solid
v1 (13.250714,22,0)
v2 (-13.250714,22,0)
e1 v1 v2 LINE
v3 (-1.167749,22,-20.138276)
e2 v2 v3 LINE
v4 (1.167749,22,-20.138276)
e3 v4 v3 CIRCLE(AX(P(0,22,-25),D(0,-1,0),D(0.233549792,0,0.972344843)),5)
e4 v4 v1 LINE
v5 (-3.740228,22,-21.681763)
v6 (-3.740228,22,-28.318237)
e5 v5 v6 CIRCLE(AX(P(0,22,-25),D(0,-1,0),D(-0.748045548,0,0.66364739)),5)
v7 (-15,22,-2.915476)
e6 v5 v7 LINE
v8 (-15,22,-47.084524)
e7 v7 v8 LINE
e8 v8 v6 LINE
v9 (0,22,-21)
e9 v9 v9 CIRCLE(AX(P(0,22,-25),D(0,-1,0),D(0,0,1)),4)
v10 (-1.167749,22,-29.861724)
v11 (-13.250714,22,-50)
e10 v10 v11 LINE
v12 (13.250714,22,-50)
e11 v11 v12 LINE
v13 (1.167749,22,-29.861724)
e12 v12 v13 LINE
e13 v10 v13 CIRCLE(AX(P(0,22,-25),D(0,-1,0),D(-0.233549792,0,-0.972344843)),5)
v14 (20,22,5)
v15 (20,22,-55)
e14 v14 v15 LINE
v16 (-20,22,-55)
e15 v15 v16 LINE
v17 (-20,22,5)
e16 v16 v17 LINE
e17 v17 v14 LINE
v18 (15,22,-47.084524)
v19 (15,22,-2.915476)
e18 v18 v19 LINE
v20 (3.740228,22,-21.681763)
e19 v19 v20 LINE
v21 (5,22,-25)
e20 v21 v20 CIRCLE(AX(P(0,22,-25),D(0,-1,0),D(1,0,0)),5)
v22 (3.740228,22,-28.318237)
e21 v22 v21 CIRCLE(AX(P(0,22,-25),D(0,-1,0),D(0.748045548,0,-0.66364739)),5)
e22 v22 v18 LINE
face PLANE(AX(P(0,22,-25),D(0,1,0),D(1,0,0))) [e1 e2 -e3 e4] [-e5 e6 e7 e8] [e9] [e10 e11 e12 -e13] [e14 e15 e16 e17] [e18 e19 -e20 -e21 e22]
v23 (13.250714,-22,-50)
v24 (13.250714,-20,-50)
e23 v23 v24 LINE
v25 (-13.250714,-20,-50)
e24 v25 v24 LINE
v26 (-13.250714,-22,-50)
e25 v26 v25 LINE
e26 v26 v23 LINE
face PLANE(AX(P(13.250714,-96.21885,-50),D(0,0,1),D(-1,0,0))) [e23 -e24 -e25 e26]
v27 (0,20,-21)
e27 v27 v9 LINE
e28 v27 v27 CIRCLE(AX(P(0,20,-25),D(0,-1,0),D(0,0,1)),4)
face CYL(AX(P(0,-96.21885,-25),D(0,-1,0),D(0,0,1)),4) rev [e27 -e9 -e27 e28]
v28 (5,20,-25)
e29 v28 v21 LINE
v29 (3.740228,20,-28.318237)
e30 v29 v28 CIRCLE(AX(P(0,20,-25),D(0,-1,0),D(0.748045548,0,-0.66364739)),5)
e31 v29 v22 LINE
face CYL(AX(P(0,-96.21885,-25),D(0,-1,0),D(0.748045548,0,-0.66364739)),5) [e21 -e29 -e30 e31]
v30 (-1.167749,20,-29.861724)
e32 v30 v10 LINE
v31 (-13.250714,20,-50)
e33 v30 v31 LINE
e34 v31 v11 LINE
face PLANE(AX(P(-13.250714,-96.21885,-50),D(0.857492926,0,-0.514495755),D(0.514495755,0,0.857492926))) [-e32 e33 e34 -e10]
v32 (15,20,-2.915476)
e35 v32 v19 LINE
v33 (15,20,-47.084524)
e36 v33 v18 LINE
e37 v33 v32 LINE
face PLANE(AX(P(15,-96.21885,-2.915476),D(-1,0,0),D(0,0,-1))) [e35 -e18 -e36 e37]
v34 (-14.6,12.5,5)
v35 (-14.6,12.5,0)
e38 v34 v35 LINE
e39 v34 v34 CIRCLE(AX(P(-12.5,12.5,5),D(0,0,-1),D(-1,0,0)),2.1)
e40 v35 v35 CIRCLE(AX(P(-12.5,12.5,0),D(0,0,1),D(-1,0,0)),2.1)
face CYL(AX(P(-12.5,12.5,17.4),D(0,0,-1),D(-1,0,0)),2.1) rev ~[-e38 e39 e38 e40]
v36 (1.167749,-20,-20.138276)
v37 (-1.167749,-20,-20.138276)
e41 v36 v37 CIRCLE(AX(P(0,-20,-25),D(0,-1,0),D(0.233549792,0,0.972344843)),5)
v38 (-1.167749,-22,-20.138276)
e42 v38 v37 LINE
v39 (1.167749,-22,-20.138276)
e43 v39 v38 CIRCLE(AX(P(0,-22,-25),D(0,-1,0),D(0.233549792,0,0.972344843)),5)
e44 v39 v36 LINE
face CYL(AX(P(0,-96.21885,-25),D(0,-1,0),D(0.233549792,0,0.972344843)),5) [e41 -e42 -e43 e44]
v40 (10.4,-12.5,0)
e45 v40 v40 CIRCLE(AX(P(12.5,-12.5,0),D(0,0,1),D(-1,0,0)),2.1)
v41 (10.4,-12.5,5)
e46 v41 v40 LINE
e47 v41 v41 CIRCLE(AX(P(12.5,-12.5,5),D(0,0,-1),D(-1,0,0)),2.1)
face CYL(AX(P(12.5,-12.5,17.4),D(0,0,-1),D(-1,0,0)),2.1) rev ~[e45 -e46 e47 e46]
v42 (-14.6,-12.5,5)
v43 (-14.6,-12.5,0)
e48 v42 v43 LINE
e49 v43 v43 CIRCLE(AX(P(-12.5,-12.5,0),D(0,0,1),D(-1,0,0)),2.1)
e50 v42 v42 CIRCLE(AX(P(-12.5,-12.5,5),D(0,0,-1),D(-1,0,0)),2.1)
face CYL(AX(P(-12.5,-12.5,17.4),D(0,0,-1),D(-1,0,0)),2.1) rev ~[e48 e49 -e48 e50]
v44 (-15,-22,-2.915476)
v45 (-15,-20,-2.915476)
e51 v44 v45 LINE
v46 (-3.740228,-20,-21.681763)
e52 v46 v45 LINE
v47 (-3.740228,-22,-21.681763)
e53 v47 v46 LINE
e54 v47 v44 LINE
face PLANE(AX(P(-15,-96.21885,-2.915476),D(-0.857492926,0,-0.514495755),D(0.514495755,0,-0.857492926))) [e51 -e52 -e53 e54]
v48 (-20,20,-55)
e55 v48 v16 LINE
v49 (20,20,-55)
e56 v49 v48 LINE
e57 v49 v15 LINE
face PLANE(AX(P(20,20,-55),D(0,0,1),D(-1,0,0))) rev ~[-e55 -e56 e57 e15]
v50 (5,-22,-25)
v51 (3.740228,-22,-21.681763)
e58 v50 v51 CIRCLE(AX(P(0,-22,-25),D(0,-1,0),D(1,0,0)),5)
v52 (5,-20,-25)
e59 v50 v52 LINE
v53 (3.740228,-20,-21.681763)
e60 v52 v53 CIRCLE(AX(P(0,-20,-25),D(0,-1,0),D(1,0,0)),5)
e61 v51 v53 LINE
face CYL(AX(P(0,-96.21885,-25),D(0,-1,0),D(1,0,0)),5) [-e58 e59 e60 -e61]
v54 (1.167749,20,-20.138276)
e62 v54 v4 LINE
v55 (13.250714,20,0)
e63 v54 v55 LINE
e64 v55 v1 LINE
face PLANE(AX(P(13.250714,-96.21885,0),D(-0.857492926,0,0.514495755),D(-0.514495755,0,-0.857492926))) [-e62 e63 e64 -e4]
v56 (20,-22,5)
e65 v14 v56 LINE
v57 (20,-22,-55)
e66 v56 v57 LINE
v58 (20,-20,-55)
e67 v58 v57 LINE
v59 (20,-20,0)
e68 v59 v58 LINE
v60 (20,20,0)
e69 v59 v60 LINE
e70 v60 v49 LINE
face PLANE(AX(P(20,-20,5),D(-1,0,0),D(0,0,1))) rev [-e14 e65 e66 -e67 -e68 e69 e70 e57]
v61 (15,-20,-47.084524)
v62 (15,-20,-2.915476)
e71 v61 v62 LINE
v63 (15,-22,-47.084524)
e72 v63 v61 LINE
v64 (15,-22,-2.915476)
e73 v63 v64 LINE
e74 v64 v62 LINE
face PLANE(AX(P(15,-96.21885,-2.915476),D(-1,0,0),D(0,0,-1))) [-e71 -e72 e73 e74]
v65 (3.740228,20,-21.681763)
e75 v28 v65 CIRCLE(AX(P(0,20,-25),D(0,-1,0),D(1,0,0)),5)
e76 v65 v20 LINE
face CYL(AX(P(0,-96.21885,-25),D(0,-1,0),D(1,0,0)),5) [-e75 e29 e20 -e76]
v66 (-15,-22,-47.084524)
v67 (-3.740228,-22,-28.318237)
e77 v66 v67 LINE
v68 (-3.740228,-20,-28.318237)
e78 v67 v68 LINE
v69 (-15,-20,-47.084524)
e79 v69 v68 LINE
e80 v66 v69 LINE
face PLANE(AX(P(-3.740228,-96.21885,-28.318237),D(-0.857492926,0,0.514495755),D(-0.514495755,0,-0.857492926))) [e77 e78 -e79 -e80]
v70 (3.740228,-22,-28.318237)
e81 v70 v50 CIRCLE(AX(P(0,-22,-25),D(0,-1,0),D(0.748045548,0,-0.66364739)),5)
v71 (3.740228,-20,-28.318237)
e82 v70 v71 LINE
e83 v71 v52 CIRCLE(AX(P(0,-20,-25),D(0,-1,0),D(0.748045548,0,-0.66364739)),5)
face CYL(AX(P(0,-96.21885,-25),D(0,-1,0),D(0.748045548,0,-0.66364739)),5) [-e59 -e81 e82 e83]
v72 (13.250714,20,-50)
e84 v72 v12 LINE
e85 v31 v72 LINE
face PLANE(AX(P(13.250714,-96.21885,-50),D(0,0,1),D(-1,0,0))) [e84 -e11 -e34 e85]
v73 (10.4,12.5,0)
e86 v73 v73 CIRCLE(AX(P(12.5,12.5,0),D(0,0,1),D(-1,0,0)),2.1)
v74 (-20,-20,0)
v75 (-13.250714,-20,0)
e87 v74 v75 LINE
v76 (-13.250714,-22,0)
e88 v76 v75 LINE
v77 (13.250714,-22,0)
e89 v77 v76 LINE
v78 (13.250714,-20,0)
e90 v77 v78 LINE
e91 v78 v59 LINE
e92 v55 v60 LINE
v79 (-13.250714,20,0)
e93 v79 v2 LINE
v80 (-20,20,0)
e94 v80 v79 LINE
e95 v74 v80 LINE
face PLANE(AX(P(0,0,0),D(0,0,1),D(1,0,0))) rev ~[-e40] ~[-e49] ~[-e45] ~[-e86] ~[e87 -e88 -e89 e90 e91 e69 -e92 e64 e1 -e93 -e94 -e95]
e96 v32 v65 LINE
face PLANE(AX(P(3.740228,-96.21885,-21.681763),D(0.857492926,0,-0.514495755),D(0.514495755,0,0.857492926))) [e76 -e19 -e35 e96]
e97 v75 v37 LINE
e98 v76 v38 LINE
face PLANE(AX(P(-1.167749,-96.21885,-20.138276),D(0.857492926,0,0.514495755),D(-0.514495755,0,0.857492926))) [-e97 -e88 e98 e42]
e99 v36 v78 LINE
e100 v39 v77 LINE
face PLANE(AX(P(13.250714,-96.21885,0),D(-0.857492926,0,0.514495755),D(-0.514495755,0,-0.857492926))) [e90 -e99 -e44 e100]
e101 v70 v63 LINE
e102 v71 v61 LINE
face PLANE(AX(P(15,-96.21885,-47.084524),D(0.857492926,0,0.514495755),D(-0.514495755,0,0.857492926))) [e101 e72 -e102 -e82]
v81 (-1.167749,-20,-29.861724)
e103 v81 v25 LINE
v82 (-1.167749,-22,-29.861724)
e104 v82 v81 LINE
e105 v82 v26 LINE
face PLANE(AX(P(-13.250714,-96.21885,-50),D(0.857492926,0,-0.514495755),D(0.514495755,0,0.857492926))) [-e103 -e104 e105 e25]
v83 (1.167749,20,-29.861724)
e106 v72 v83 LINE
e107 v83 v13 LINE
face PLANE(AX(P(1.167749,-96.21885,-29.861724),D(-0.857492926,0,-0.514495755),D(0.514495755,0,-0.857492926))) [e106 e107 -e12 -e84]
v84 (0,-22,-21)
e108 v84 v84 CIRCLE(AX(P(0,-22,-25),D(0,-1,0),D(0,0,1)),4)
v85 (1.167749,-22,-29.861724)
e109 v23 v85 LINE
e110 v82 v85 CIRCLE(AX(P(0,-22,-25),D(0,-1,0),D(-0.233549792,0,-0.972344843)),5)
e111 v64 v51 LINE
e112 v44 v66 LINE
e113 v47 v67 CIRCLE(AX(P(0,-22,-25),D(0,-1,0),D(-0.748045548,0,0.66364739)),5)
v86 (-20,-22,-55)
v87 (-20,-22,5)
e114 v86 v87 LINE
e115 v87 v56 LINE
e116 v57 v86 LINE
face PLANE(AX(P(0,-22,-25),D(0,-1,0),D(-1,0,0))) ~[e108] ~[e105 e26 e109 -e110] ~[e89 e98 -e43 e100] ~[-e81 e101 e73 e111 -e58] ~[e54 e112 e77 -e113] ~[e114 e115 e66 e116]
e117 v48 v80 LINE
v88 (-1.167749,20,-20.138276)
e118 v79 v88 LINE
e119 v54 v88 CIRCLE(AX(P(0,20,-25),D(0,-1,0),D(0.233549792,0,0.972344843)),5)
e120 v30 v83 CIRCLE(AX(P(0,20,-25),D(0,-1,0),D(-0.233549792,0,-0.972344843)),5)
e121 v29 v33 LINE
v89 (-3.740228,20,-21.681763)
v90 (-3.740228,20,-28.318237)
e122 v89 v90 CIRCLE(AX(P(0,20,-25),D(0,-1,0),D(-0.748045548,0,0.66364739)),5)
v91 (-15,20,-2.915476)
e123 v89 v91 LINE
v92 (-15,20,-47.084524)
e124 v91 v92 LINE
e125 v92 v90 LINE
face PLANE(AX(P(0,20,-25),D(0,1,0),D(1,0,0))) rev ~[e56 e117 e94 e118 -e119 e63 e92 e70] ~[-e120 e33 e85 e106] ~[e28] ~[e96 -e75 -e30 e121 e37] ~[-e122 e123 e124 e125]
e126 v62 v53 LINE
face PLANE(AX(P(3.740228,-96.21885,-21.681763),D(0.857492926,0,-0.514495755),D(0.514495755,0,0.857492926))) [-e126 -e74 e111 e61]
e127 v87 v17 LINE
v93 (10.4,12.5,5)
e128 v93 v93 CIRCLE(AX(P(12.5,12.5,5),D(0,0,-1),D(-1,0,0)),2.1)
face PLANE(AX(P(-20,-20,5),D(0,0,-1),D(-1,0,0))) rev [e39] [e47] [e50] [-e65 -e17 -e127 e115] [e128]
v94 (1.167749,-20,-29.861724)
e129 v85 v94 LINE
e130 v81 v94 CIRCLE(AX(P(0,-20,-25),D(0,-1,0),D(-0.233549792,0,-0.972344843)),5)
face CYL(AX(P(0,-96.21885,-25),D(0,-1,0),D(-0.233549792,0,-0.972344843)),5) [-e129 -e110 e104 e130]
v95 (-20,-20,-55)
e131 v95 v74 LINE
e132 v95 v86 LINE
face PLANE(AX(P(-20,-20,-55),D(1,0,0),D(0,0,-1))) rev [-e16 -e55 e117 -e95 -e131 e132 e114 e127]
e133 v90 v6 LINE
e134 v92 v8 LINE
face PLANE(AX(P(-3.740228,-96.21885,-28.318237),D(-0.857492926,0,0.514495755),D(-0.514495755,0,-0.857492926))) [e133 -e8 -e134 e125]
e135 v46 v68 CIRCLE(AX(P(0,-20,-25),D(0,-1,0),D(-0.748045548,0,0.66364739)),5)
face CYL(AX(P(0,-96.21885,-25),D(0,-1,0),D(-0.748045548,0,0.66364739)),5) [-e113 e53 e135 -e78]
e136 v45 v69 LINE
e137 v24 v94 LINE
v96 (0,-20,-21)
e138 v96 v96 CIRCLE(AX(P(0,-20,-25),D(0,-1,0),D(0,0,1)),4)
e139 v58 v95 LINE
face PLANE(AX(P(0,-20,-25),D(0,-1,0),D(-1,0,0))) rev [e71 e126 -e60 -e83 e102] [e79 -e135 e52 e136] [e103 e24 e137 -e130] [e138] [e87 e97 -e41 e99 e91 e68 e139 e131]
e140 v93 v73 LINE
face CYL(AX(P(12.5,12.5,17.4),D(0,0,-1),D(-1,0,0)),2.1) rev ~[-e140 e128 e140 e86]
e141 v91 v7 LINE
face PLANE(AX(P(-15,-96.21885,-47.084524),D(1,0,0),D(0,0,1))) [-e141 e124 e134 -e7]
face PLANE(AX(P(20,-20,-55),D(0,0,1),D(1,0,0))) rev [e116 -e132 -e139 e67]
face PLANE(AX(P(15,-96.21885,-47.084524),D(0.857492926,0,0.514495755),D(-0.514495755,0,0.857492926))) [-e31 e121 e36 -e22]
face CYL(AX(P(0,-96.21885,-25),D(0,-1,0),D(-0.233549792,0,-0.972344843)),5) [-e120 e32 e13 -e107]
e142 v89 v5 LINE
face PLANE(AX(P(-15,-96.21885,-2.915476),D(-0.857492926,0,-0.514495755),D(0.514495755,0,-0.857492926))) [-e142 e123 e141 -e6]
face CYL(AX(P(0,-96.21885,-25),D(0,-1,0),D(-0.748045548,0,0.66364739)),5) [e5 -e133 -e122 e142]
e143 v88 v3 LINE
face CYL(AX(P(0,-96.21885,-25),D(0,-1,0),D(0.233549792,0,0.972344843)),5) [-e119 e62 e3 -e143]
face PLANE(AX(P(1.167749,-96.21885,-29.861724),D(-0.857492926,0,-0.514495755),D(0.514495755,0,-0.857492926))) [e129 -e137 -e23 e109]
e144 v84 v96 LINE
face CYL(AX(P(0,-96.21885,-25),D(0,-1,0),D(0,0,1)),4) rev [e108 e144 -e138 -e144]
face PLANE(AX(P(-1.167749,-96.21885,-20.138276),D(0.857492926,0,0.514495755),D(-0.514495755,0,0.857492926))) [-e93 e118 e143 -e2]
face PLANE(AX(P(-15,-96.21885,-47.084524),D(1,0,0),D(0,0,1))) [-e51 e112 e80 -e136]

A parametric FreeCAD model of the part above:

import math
import FreeCAD as App
import Part
import Sketcher

V = App.Vector
Q = App.Units.Quantity


def add_polygon(sketch, points):
    """Adds a closed chain of lines whose ends are joined by coincident constraints."""
    first, n = sketch.GeometryCount, len(points)
    for a, b in zip(points, points[1:] + points[:1]):
        sketch.addGeometry(Part.LineSegment(App.Vector(*a, 0), App.Vector(*b, 0)), False)
    for i in range(n):
        sketch.addConstraint(Sketcher.Constraint("Coincident", first + i, 2, first + (i + 1) % n, 1))

doc = App.newDocument("Part")
body = doc.addObject("PartDesign::Body", "Body")

sketch1 = body.newObject("Sketcher::SketchObject", "Sketch")
sketch1.AttachmentSupport = (doc.getObject("XY_Plane"), [""])
sketch1.MapMode = "FlatFace"
add_polygon(sketch1, [(-20, 20), (-20, -20), (20, -20), (20, 20)])
sketch1.addConstraint(Sketcher.Constraint("Vertical", 0))
sketch1.addConstraint(Sketcher.Constraint("Horizontal", 1))
sketch1.addConstraint(Sketcher.Constraint("Vertical", 2))
sketch1.addConstraint(Sketcher.Constraint("Horizontal", 3))
sketch1.addConstraint(Sketcher.Constraint("Symmetric", 0, 2, 2, 2, -1, 1))
sketch1.addConstraint(Sketcher.Constraint("Equal", 3, 0))
sketch1.addConstraint(Sketcher.Constraint("DistanceX", 1, 1, 1, 2, Q("40 mm")))
pad1 = body.newObject("PartDesign::Pad", "Pad")
pad1.Profile = sketch1
pad1.Length = 5

sketch2 = body.newObject("Sketcher::SketchObject", "Sketch001")
sketch2.AttachmentSupport = (doc.getObject("XZ_Plane"), [""])
sketch2.MapMode = "FlatFace"
sketch2.AttachmentOffset = App.Placement(V(0, 0, -20), App.Rotation())
add_polygon(sketch2, [(20, -55), (-20, -55), (-20, 5), (20, 5)])
sketch2.addConstraint(Sketcher.Constraint("Horizontal", 0))
sketch2.addConstraint(Sketcher.Constraint("Vertical", 1))
sketch2.addConstraint(Sketcher.Constraint("Horizontal", 2))
sketch2.addConstraint(Sketcher.Constraint("Vertical", 3))
sketch2.addConstraint(Sketcher.Constraint("DistanceX", 0, 2, 0, 1, Q("40 mm")))
sketch2.addConstraint(Sketcher.Constraint("DistanceY", 1, 1, 1, 2, Q("60 mm")))
sketch2.addConstraint(Sketcher.Constraint("DistanceX", 0, 2, -1, 1, Q("20 mm")))
sketch2.addConstraint(Sketcher.Constraint("DistanceY", 0, 2, -1, 1, Q("55 mm")))
pad2 = body.newObject("PartDesign::Pad", "Pad001")
pad2.Profile = sketch2
pad2.Length = 2
pad2.Reversed = True
doc.recompute()

mirrored = body.newObject("PartDesign::Mirrored", "Mirrored")
mirrored.Originals = [pad2]
mirrored.MirrorPlane = (doc.getObject("XZ_Plane"), [""])
body.Tip = mirrored

sketch3 = body.newObject("Sketcher::SketchObject", "Sketch002")
sketch3.AttachmentSupport = (doc.getObject("XY_Plane"), [""])
sketch3.MapMode = "FlatFace"
sketch3.AttachmentOffset = App.Placement(V(0, 0, 5), App.Rotation())
sketch3.addGeometry(Part.Circle(V(-12.5, 12.5, 0), V(0, 0, 1), 2.1), False)
sketch3.addGeometry(Part.Circle(V(12.5, 12.5, 0), V(0, 0, 1), 2.1), False)
sketch3.addGeometry(Part.Circle(V(12.5, -12.5, 0), V(0, 0, 1), 2.1), False)
sketch3.addGeometry(Part.Circle(V(-12.5, -12.5, 0), V(0, 0, 1), 2.1), False)
sketch3.addConstraint(Sketcher.Constraint("Equal", 0, 1))
sketch3.addConstraint(Sketcher.Constraint("Equal", 1, 2))
sketch3.addConstraint(Sketcher.Constraint("Equal", 2, 3))
sketch3.addConstraint(Sketcher.Constraint("Symmetric", 0, 3, 2, 3, -1, 1))
sketch3.addConstraint(Sketcher.Constraint("Symmetric", 1, 3, 3, 3, -1, 1))
sketch3.addConstraint(Sketcher.Constraint("Symmetric", 0, 3, 1, 3, -2))
sketch3.addConstraint(Sketcher.Constraint("Diameter", 0, Q("4.2 mm")))
sketch3.addConstraint(Sketcher.Constraint("DistanceX", 0, 3, 1, 3, Q("25 mm")))
sketch3.addConstraint(Sketcher.Constraint("DistanceY", 2, 3, 1, 3, Q("25 mm")))
doc.recompute()
hole = body.newObject("PartDesign::Hole", "Hole")
hole.Profile = sketch3
hole.ThreadType = "None"
hole.Diameter = 4.2
hole.DepthType = "Dimension"
hole.Depth = 12.4
hole.DrillPoint = "Angled"
hole.DrillPointAngle = 118

sketch4 = body.newObject("Sketcher::SketchObject", "Sketch003")
sketch4.AttachmentSupport = (doc.getObject("XZ_Plane"), [""])
sketch4.MapMode = "FlatFace"
sketch4.AttachmentOffset = App.Placement(V(0, 0, 22), App.Rotation())
sketch4.addGeometry(Part.LineSegment(V(13.3, -50, 0), V(-13.3, -50, 0)), False)
sketch4.addGeometry(Part.LineSegment(V(-13.3, -50, 0), V(-1.2, -29.9, 0)), False)
sketch4.addGeometry(Part.ArcOfCircle(Part.Circle(V(0, -25, 0), V(0, 0, 1), 5), math.radians(-104), math.radians(-76)), False)
sketch4.addGeometry(Part.LineSegment(V(1.2, -29.9, 0), V(13.3, -50, 0)), False)
sketch4.addGeometry(Part.LineSegment(V(15, -2.9, 0), V(15, -47.1, 0)), False)
sketch4.addGeometry(Part.LineSegment(V(15, -47.1, 0), V(3.7, -28.3, 0)), False)
sketch4.addGeometry(Part.ArcOfCircle(Part.Circle(V(0, -25, 0), V(0, 0, 1), 5), math.radians(-42), math.radians(0)), False)
sketch4.addGeometry(Part.ArcOfCircle(Part.Circle(V(0, -25, 0), V(0, 0, 1), 5), math.radians(0), math.radians(42)), False)
sketch4.addGeometry(Part.LineSegment(V(3.7, -21.7, 0), V(15, -2.9, 0)), False)
sketch4.addGeometry(Part.LineSegment(V(-3.7, -28.3, 0), V(-15, -47.1, 0)), False)
sketch4.addGeometry(Part.LineSegment(V(-15, -47.1, 0), V(-15, -2.9, 0)), False)
sketch4.addGeometry(Part.LineSegment(V(-15, -2.9, 0), V(-3.7, -21.7, 0)), False)
sketch4.addGeometry(Part.ArcOfCircle(Part.Circle(V(0, -25, 0), V(0, 0, 1), 5), math.radians(138), math.radians(222)), False)
sketch4.addGeometry(Part.LineSegment(V(-1.2, -20.1, 0), V(-13.3, 0, 0)), False)
sketch4.addGeometry(Part.LineSegment(V(-13.3, 0, 0), V(13.3, 0, 0)), False)
sketch4.addGeometry(Part.LineSegment(V(13.3, 0, 0), V(1.2, -20.1, 0)), False)
sketch4.addGeometry(Part.ArcOfCircle(Part.Circle(V(0, -25, 0), V(0, 0, 1), 5), math.radians(76), math.radians(104)), False)
sketch4.addGeometry(Part.Circle(V(0, -25, 0), V(0, 0, 1), 4), False)
sketch4.addConstraint(Sketcher.Constraint("Coincident", 0, 2, 1, 1))
sketch4.addConstraint(Sketcher.Constraint("Coincident", 1, 2, 2, 1))
sketch4.addConstraint(Sketcher.Constraint("Coincident", 2, 2, 3, 1))
sketch4.addConstraint(Sketcher.Constraint("Coincident", 3, 2, 0, 1))
sketch4.addConstraint(Sketcher.Constraint("Coincident", 4, 2, 5, 1))
sketch4.addConstraint(Sketcher.Constraint("Coincident", 5, 2, 6, 1))
sketch4.addConstraint(Sketcher.Constraint("Tangent", 6, 2, 7, 1))
sketch4.addConstraint(Sketcher.Constraint("Coincident", 7, 2, 8, 1))
sketch4.addConstraint(Sketcher.Constraint("Coincident", 8, 2, 4, 1))
sketch4.addConstraint(Sketcher.Constraint("Coincident", 9, 2, 10, 1))
sketch4.addConstraint(Sketcher.Constraint("Coincident", 10, 2, 11, 1))
sketch4.addConstraint(Sketcher.Constraint("Coincident", 11, 2, 12, 1))
sketch4.addConstraint(Sketcher.Constraint("Coincident", 12, 2, 9, 1))
sketch4.addConstraint(Sketcher.Constraint("Coincident", 13, 2, 14, 1))
sketch4.addConstraint(Sketcher.Constraint("Coincident", 14, 2, 15, 1))
sketch4.addConstraint(Sketcher.Constraint("Coincident", 15, 2, 16, 1))
sketch4.addConstraint(Sketcher.Constraint("Coincident", 16, 2, 13, 1))
sketch4.addConstraint(Sketcher.Constraint("Horizontal", 0))
sketch4.addConstraint(Sketcher.Constraint("Vertical", 4))
sketch4.addConstraint(Sketcher.Constraint("Vertical", 10))
sketch4.addConstraint(Sketcher.Constraint("Horizontal", 14))
sketch4.addConstraint(Sketcher.Constraint("Coincident", 6, 3, 2, 3))
sketch4.addConstraint(Sketcher.Constraint("Coincident", 12, 3, 2, 3))
sketch4.addConstraint(Sketcher.Constraint("Coincident", 16, 3, 2, 3))
sketch4.addConstraint(Sketcher.Constraint("Coincident", 17, 3, 2, 3))
sketch4.addConstraint(Sketcher.Constraint("Equal", 2, 6))
sketch4.addConstraint(Sketcher.Constraint("Equal", 6, 7))
sketch4.addConstraint(Sketcher.Constraint("Equal", 7, 12))
sketch4.addConstraint(Sketcher.Constraint("Equal", 12, 16))
sketch4.addConstraint(Sketcher.Constraint("Symmetric", 13, 2, 14, 2, -1, 1))
sketch4.addConstraint(Sketcher.Constraint("Symmetric", 1, 2, 2, 2, -2))
sketch4.addConstraint(Sketcher.Constraint("Symmetric", 4, 2, 9, 2, -2))
sketch4.addConstraint(Sketcher.Constraint("Parallel", 3, 5))
sketch4.addConstraint(Sketcher.Constraint("Parallel", 1, 8))
sketch4.addConstraint(Sketcher.Constraint("Parallel", 8, 9))
sketch4.addConstraint(Sketcher.Constraint("Parallel", 5, 11))
sketch4.addConstraint(Sketcher.Constraint("Parallel", 11, 13))
sketch4.addConstraint(Sketcher.Constraint("Parallel", 9, 15))
sketch4.addConstraint(Sketcher.Constraint("Horizontal", 17, 3, 6, 2))
sketch4.addConstraint(Sketcher.Constraint("Horizontal", 8, 2, 10, 2))
sketch4.addConstraint(Sketcher.Constraint("Horizontal", 7, 2, 11, 2))
sketch4.addConstraint(Sketcher.Constraint("Vertical", 5, 2, 7, 2))
sketch4.addConstraint(Sketcher.Constraint("Vertical", 0, 2, 13, 2))
sketch4.addConstraint(Sketcher.Constraint("Vertical", 2, 2, 15, 2))
sketch4.addConstraint(Sketcher.Constraint("Diameter", 17, Q("8 mm")))
sketch4.addConstraint(Sketcher.Constraint("Radius", 2, Q("5 mm")))
sketch4.addConstraint(Sketcher.Constraint("DistanceY", 2, 3, -1, 1, Q("25 mm")))
sketch4.addConstraint(Sketcher.Constraint("DistanceX", -1, 1, 4, 2, Q("15 mm")))
sketch4.addConstraint(Sketcher.Constraint("DistanceX", 0, 2, 0, 1, Q("26.501429 mm")))
sketch4.addConstraint(Sketcher.Constraint("DistanceY", 4, 2, 4, 1, Q("44.169048 mm")))
sketch4.addConstraint(Sketcher.Constraint("DistanceY", 4, 2, 2, 2, Q("17.2228 mm")))
pocket1 = body.newObject("PartDesign::Pocket", "Pocket")
pocket1.Profile = sketch4
pocket1.Type = "ThroughAll"
pocket1.Midplane = True

doc.recompute()
